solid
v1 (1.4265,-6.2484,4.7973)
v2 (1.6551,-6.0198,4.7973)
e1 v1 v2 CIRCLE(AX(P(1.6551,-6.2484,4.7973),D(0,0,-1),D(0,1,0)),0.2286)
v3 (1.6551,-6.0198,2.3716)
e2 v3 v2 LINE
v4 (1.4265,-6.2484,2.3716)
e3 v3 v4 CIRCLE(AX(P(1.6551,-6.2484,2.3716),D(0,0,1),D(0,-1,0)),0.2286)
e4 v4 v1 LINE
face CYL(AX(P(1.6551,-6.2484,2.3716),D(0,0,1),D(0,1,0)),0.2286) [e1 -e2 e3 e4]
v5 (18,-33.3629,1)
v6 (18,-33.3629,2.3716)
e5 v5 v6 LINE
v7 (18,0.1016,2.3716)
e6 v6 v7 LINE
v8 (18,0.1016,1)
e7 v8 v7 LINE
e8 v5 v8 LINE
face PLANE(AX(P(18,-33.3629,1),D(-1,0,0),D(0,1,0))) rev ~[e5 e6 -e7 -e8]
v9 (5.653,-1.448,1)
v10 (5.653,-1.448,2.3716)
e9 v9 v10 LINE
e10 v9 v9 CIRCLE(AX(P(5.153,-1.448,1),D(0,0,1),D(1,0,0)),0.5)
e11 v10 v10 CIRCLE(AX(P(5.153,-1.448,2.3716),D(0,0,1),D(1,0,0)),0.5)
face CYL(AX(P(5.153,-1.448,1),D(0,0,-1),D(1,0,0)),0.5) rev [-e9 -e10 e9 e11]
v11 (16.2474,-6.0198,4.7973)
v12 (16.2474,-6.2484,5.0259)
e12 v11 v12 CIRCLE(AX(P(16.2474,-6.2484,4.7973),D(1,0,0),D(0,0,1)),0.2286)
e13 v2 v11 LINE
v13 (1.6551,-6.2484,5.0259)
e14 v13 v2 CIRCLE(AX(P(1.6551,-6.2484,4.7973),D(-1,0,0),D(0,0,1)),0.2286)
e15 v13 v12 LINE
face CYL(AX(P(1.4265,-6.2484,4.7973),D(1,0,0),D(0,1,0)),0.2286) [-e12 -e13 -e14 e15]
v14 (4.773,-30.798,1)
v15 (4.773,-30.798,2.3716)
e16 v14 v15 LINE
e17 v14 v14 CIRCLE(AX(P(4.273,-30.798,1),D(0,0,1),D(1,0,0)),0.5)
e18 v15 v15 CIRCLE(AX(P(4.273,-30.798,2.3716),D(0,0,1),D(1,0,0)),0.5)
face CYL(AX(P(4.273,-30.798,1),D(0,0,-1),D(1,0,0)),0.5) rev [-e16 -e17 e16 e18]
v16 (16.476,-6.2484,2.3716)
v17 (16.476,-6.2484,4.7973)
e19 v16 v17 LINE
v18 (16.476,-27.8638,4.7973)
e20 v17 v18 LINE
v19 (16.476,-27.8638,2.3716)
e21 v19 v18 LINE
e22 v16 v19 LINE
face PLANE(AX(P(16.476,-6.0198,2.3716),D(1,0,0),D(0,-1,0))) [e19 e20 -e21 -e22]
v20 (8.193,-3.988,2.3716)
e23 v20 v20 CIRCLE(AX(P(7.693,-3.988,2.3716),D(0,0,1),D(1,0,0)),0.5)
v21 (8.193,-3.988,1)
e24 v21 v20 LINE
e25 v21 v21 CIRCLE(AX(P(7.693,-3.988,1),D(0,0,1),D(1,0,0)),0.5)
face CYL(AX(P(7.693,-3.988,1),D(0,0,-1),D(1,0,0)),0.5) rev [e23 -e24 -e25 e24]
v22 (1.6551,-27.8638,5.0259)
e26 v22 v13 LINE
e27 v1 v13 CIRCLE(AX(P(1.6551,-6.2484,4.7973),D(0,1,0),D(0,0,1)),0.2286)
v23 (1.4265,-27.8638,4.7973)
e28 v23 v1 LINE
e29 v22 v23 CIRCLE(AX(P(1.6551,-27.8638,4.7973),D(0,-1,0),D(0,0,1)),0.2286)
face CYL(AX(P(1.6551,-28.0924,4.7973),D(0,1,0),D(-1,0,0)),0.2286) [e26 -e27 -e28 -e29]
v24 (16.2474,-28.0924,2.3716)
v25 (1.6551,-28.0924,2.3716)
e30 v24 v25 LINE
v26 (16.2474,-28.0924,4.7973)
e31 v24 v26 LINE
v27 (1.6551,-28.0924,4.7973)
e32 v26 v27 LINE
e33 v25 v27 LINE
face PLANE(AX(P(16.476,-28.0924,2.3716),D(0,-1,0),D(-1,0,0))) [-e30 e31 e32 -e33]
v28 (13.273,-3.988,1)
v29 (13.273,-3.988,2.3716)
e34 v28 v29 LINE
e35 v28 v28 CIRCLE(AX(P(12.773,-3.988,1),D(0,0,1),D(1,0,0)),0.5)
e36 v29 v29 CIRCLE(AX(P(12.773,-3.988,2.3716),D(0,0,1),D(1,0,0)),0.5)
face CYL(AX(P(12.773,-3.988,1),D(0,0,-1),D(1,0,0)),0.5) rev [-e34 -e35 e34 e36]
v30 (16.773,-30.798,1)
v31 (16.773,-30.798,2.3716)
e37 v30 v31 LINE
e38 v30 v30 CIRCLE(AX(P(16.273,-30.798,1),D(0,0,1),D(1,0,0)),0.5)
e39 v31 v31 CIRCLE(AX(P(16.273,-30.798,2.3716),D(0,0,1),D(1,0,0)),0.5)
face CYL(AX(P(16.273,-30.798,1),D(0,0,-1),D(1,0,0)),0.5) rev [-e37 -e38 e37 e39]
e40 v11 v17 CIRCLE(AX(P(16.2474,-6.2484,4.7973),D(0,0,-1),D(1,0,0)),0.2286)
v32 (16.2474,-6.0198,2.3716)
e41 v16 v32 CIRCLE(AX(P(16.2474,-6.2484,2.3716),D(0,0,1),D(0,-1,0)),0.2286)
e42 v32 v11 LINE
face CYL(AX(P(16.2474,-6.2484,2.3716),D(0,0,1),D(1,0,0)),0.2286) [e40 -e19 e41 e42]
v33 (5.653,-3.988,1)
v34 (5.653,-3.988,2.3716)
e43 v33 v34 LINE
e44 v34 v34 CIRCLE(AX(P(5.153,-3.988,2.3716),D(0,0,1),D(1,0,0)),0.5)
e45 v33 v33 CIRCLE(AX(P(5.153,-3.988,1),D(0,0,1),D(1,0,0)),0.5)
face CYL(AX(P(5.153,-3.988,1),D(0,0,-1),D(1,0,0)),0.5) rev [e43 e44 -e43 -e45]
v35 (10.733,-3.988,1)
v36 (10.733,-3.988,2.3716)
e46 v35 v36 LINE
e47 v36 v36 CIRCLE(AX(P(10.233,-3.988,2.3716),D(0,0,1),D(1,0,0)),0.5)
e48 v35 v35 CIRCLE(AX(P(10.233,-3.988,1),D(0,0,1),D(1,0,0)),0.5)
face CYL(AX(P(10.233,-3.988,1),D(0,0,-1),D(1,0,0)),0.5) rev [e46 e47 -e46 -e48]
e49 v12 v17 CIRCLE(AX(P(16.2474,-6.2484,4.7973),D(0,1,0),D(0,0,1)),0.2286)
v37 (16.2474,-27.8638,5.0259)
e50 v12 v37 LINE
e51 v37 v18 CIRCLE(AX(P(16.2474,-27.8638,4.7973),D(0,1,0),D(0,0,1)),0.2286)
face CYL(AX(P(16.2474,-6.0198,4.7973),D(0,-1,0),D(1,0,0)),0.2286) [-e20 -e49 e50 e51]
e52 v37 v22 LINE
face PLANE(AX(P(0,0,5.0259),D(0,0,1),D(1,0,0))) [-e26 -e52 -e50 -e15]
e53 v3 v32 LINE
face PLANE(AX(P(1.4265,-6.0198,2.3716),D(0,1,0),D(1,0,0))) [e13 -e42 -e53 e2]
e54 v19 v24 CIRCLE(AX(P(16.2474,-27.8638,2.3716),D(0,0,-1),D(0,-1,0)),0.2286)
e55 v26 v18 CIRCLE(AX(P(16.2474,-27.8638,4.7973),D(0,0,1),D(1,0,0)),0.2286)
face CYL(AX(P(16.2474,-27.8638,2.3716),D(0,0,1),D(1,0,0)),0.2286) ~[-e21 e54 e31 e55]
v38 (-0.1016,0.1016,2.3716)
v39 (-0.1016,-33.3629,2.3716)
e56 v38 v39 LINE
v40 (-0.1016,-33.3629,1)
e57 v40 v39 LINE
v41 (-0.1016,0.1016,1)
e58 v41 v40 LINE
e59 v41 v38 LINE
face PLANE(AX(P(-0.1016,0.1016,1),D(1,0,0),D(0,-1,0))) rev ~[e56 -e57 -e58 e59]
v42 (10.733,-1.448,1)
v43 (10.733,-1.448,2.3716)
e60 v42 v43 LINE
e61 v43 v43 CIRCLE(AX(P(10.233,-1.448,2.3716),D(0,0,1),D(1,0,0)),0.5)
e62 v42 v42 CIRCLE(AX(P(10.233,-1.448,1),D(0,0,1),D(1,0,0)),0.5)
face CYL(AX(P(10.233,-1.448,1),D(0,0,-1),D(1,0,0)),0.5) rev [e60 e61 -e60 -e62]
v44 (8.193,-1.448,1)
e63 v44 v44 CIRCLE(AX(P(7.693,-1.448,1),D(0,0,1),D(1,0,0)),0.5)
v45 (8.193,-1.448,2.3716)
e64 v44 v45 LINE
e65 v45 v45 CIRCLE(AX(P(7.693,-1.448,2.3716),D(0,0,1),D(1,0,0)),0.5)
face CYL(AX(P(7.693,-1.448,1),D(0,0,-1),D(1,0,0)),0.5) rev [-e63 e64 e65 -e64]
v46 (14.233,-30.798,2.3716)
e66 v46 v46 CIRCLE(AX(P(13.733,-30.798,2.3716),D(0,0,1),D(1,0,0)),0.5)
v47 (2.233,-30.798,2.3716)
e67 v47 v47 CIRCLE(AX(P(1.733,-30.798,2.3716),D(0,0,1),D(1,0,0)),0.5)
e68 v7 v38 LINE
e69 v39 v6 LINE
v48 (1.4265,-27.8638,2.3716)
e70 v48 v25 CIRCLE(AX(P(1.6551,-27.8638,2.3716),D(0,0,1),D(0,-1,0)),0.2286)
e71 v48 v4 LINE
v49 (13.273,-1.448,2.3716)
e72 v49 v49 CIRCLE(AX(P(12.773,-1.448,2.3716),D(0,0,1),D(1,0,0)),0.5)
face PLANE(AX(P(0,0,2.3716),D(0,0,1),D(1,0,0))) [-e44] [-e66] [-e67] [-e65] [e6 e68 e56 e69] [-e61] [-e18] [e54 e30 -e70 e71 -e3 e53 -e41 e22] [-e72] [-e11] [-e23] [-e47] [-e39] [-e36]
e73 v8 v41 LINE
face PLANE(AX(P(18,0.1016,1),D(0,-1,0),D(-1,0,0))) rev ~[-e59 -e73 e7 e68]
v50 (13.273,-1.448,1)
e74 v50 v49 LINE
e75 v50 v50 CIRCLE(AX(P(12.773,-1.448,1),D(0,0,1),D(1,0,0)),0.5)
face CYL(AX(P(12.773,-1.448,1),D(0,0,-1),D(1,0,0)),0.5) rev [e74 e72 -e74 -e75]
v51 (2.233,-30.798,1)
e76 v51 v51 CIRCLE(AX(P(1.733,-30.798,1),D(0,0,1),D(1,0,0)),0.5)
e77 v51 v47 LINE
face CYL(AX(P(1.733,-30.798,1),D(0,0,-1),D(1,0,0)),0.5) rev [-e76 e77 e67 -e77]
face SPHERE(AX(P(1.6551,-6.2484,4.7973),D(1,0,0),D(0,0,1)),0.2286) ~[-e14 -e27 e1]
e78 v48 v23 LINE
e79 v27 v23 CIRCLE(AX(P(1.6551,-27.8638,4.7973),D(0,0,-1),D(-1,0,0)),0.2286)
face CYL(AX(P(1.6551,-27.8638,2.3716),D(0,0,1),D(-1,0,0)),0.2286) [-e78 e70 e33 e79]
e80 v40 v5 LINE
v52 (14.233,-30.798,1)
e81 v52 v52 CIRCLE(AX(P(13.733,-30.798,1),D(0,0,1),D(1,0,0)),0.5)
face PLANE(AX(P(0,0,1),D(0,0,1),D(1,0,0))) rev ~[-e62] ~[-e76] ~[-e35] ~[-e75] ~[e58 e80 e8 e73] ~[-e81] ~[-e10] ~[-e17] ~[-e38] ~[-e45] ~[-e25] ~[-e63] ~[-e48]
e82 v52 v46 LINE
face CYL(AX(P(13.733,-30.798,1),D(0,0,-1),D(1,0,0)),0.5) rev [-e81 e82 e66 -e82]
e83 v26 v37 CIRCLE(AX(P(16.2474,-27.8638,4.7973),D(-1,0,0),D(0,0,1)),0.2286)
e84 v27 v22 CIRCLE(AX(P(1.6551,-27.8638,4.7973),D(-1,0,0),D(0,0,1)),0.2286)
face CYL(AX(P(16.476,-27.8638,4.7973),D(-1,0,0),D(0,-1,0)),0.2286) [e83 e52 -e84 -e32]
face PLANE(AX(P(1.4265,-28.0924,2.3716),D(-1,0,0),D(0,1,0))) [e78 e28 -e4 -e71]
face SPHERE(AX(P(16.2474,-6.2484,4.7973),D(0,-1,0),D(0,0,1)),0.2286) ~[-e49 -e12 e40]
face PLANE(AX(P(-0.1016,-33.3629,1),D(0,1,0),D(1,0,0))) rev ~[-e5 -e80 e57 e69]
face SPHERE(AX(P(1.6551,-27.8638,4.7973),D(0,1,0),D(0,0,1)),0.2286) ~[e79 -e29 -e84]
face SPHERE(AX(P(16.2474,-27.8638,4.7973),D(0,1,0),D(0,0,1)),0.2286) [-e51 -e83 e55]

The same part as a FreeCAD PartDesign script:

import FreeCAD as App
import Part
import Sketcher

V = App.Vector
Q = App.Units.Quantity


def edges_at(feature, points):
    """Names of the edges that pass closest to the given points."""
    edges = feature.Shape.Edges
    near = lambda p: min(range(len(edges)), key=lambda i: edges[i].distToShape(Part.Vertex(*p))[0])
    return sorted({f"Edge{near(p) + 1}" for p in points})

doc = App.newDocument("Part")
body = doc.addObject("PartDesign::Body", "Body")

# Sketch on XY plane
sketch1 = doc.addObject("Sketcher::SketchObject", "Sketch")
body.addObject(sketch1)
sketch1.AttachmentSupport = (doc.XY_Plane, [""])
sketch1.MapMode = "FlatFace"
sketch1.AttachmentOffset = App.Placement(V(0, 0, 1), App.Rotation())
sketch1.addGeometry(Part.LineSegment(V(-0.1, -33.4, 0), V(18, -33.4, 0)), False)
sketch1.addGeometry(Part.LineSegment(V(18, -33.4, 0), V(18, 0.1, 0)), False)
sketch1.addGeometry(Part.LineSegment(V(18, 0.1, 0), V(-0.1, 0.1, 0)), False)
sketch1.addGeometry(Part.LineSegment(V(-0.1, 0.1, 0), V(-0.1, -33.4, 0)), False)
sketch1.addGeometry(Part.Circle(V(1.7, -30.8, 0), V(0, 0, 1), 0.5), False)
sketch1.addGeometry(Part.Circle(V(4.3, -30.8, 0), V(0, 0, 1), 0.5), False)
sketch1.addGeometry(Part.Circle(V(13.7, -30.8, 0), V(0, 0, 1), 0.5), False)
sketch1.addGeometry(Part.Circle(V(16.3, -30.8, 0), V(0, 0, 1), 0.5), False)
sketch1.addGeometry(Part.Circle(V(5.2, -4, 0), V(0, 0, 1), 0.5), False)
sketch1.addGeometry(Part.Circle(V(7.7, -4, 0), V(0, 0, 1), 0.5), False)
sketch1.addGeometry(Part.Circle(V(5.2, -1.4, 0), V(0, 0, 1), 0.5), False)
sketch1.addGeometry(Part.Circle(V(7.7, -1.4, 0), V(0, 0, 1), 0.5), False)
sketch1.addGeometry(Part.Circle(V(10.2, -4, 0), V(0, 0, 1), 0.5), False)
sketch1.addGeometry(Part.Circle(V(10.2, -1.4, 0), V(0, 0, 1), 0.5), False)
sketch1.addGeometry(Part.Circle(V(12.8, -4, 0), V(0, 0, 1), 0.5), False)
sketch1.addGeometry(Part.Circle(V(12.8, -1.4, 0), V(0, 0, 1), 0.5), False)
sketch1.addConstraint(Sketcher.Constraint("Coincident", 0, 2, 1, 1))
sketch1.addConstraint(Sketcher.Constraint("Coincident", 1, 2, 2, 1))
sketch1.addConstraint(Sketcher.Constraint("Coincident", 2, 2, 3, 1))
sketch1.addConstraint(Sketcher.Constraint("Coincident", 3, 2, 0, 1))
sketch1.addConstraint(Sketcher.Constraint("Horizontal", 0))
sketch1.addConstraint(Sketcher.Constraint("Vertical", 1))
sketch1.addConstraint(Sketcher.Constraint("Horizontal", 2))
sketch1.addConstraint(Sketcher.Constraint("Vertical", 3))
sketch1.addConstraint(Sketcher.Constraint("Equal", 4, 5))
sketch1.addConstraint(Sketcher.Constraint("Equal", 5, 6))
sketch1.addConstraint(Sketcher.Constraint("Equal", 6, 7))
sketch1.addConstraint(Sketcher.Constraint("Equal", 7, 8))
sketch1.addConstraint(Sketcher.Constraint("Equal", 8, 9))
sketch1.addConstraint(Sketcher.Constraint("Equal", 9, 10))
sketch1.addConstraint(Sketcher.Constraint("Equal", 10, 11))
sketch1.addConstraint(Sketcher.Constraint("Equal", 11, 12))
sketch1.addConstraint(Sketcher.Constraint("Equal", 12, 13))
sketch1.addConstraint(Sketcher.Constraint("Equal", 13, 14))
sketch1.addConstraint(Sketcher.Constraint("Equal", 14, 15))
sketch1.addConstraint(Sketcher.Constraint("Horizontal", 4, 3, 5, 3))
sketch1.addConstraint(Sketcher.Constraint("Horizontal", 5, 3, 6, 3))
sketch1.addConstraint(Sketcher.Constraint("Horizontal", 6, 3, 7, 3))
sketch1.addConstraint(Sketcher.Constraint("Horizontal", 8, 3, 9, 3))
sketch1.addConstraint(Sketcher.Constraint("Horizontal", 10, 3, 11, 3))
sketch1.addConstraint(Sketcher.Constraint("Horizontal", 9, 3, 12, 3))
sketch1.addConstraint(Sketcher.Constraint("Horizontal", 11, 3, 13, 3))
sketch1.addConstraint(Sketcher.Constraint("Horizontal", 12, 3, 14, 3))
sketch1.addConstraint(Sketcher.Constraint("Horizontal", 13, 3, 15, 3))
sketch1.addConstraint(Sketcher.Constraint("Vertical", 8, 3, 10, 3))
sketch1.addConstraint(Sketcher.Constraint("Vertical", 9, 3, 11, 3))
sketch1.addConstraint(Sketcher.Constraint("Vertical", 12, 3, 13, 3))
sketch1.addConstraint(Sketcher.Constraint("Vertical", 14, 3, 15, 3))
sketch1.addConstraint(Sketcher.Constraint("DistanceY", 1, 1, 1, 2, Q("1.3175 in")))
sketch1.addConstraint(Sketcher.Constraint("DistanceX", 4, 3, 5, 3, Q("0.1 in")))
sketch1.addConstraint(Sketcher.Constraint("DistanceX", 6, 3, 7, 3, Q("0.1 in")))
sketch1.addConstraint(Sketcher.Constraint("DistanceX", 8, 3, 9, 3, Q("0.1 in")))
sketch1.addConstraint(Sketcher.Constraint("DistanceY", 8, 3, 10, 3, Q("0.1 in")))
sketch1.addConstraint(Sketcher.Constraint("DistanceX", 9, 3, 12, 3, Q("0.1 in")))
sketch1.addConstraint(Sketcher.Constraint("DistanceX", 12, 3, 14, 3, Q("0.1 in")))
sketch1.addConstraint(Sketcher.Constraint("Diameter", 4, Q("1 mm")))
sketch1.addConstraint(Sketcher.Constraint("DistanceY", 8, 3, -1, 1, Q("0.157 in")))
sketch1.addConstraint(Sketcher.Constraint("DistanceY", -1, 1, 1, 2, Q("0.004 in")))
sketch1.addConstraint(Sketcher.Constraint("DistanceX", 2, 2, -1, 1, Q("0.004 in")))
sketch1.addConstraint(Sketcher.Constraint("DistanceX", 7, 3, 0, 2, Q("0.068 in")))
sketch1.addConstraint(Sketcher.Constraint("DistanceX", 0, 1, 0, 2, Q("18.1016 mm")))
sketch1.addConstraint(Sketcher.Constraint("DistanceY", 5, 3, 8, 3, Q("1.0555 in")))
sketch1.addConstraint(Sketcher.Constraint("DistanceX", 8, 3, 6, 3, Q("0.3378 in")))
sketch1.addConstraint(Sketcher.Constraint("DistanceX", -1, 1, 4, 3, Q("1.733 mm")))
pad1 = doc.addObject("PartDesign::Pad", "Pad")
body.addObject(pad1)
pad1.Profile = sketch1
pad1.Length = Q("0.054 in")

# Sketch on XY plane
sketch2 = doc.addObject("Sketcher::SketchObject", "Sketch001")
body.addObject(sketch2)
sketch2.AttachmentSupport = (doc.XY_Plane, [""])
sketch2.MapMode = "FlatFace"
sketch2.AttachmentOffset = App.Placement(V(0, 0, 2.3716), App.Rotation())
sketch2.addGeometry(Part.LineSegment(V(1, -28, 0), V(16, -28, 0)), False)
sketch2.addGeometry(Part.LineSegment(V(16, -28, 0), V(16, -6, 0)), False)
sketch2.addGeometry(Part.LineSegment(V(16, -6, 0), V(1, -6, 0)), False)
sketch2.addGeometry(Part.LineSegment(V(1, -6, 0), V(1, -28, 0)), False)
sketch2.addConstraint(Sketcher.Constraint("Coincident", 0, 2, 1, 1))
sketch2.addConstraint(Sketcher.Constraint("Coincident", 1, 2, 2, 1))
sketch2.addConstraint(Sketcher.Constraint("Coincident", 2, 2, 3, 1))
sketch2.addConstraint(Sketcher.Constraint("Coincident", 3, 2, 0, 1))
sketch2.addConstraint(Sketcher.Constraint("Horizontal", 0))
sketch2.addConstraint(Sketcher.Constraint("Vertical", 1))
sketch2.addConstraint(Sketcher.Constraint("Horizontal", 2))
sketch2.addConstraint(Sketcher.Constraint("Vertical", 3))
sketch2.addConstraint(Sketcher.Constraint("DistanceY", 1, 1, 1, 2, Q("0.869 in")))
sketch2.addConstraint(Sketcher.Constraint("DistanceX", 0, 1, 0, 2, Q("0.5925 in")))
sketch2.addConstraint(Sketcher.Constraint("DistanceY", 0, 2, -1, 1, Q("1.106 in")))
sketch2.addConstraint(Sketcher.Constraint("DistanceX", -1, 1, 0, 2, Q("16.476 mm")))
pad2 = doc.addObject("PartDesign::Pad", "Pad001")
body.addObject(pad2)
pad2.Profile = sketch2
pad2.Length = Q("0.1045 in")
doc.recompute()

fillet = doc.addObject("PartDesign::Fillet", "Fillet")
body.addObject(fillet)
fillet.Base = (pad2, edges_at(pad2, [
    (16.476, -17.056, 5.026),
    (8.951, -6.02, 5.026),
    (1.427, -17.056, 5.026),
    (8.951, -28.092, 5.026),
    (16.476, -28.092, 3.699),
    (1.427, -28.092, 3.699),
    (16.476, -6.02, 3.699),
    (1.427, -6.02, 3.699),
]))
fillet.Radius = Q("0.009 in")

doc.recompute()
